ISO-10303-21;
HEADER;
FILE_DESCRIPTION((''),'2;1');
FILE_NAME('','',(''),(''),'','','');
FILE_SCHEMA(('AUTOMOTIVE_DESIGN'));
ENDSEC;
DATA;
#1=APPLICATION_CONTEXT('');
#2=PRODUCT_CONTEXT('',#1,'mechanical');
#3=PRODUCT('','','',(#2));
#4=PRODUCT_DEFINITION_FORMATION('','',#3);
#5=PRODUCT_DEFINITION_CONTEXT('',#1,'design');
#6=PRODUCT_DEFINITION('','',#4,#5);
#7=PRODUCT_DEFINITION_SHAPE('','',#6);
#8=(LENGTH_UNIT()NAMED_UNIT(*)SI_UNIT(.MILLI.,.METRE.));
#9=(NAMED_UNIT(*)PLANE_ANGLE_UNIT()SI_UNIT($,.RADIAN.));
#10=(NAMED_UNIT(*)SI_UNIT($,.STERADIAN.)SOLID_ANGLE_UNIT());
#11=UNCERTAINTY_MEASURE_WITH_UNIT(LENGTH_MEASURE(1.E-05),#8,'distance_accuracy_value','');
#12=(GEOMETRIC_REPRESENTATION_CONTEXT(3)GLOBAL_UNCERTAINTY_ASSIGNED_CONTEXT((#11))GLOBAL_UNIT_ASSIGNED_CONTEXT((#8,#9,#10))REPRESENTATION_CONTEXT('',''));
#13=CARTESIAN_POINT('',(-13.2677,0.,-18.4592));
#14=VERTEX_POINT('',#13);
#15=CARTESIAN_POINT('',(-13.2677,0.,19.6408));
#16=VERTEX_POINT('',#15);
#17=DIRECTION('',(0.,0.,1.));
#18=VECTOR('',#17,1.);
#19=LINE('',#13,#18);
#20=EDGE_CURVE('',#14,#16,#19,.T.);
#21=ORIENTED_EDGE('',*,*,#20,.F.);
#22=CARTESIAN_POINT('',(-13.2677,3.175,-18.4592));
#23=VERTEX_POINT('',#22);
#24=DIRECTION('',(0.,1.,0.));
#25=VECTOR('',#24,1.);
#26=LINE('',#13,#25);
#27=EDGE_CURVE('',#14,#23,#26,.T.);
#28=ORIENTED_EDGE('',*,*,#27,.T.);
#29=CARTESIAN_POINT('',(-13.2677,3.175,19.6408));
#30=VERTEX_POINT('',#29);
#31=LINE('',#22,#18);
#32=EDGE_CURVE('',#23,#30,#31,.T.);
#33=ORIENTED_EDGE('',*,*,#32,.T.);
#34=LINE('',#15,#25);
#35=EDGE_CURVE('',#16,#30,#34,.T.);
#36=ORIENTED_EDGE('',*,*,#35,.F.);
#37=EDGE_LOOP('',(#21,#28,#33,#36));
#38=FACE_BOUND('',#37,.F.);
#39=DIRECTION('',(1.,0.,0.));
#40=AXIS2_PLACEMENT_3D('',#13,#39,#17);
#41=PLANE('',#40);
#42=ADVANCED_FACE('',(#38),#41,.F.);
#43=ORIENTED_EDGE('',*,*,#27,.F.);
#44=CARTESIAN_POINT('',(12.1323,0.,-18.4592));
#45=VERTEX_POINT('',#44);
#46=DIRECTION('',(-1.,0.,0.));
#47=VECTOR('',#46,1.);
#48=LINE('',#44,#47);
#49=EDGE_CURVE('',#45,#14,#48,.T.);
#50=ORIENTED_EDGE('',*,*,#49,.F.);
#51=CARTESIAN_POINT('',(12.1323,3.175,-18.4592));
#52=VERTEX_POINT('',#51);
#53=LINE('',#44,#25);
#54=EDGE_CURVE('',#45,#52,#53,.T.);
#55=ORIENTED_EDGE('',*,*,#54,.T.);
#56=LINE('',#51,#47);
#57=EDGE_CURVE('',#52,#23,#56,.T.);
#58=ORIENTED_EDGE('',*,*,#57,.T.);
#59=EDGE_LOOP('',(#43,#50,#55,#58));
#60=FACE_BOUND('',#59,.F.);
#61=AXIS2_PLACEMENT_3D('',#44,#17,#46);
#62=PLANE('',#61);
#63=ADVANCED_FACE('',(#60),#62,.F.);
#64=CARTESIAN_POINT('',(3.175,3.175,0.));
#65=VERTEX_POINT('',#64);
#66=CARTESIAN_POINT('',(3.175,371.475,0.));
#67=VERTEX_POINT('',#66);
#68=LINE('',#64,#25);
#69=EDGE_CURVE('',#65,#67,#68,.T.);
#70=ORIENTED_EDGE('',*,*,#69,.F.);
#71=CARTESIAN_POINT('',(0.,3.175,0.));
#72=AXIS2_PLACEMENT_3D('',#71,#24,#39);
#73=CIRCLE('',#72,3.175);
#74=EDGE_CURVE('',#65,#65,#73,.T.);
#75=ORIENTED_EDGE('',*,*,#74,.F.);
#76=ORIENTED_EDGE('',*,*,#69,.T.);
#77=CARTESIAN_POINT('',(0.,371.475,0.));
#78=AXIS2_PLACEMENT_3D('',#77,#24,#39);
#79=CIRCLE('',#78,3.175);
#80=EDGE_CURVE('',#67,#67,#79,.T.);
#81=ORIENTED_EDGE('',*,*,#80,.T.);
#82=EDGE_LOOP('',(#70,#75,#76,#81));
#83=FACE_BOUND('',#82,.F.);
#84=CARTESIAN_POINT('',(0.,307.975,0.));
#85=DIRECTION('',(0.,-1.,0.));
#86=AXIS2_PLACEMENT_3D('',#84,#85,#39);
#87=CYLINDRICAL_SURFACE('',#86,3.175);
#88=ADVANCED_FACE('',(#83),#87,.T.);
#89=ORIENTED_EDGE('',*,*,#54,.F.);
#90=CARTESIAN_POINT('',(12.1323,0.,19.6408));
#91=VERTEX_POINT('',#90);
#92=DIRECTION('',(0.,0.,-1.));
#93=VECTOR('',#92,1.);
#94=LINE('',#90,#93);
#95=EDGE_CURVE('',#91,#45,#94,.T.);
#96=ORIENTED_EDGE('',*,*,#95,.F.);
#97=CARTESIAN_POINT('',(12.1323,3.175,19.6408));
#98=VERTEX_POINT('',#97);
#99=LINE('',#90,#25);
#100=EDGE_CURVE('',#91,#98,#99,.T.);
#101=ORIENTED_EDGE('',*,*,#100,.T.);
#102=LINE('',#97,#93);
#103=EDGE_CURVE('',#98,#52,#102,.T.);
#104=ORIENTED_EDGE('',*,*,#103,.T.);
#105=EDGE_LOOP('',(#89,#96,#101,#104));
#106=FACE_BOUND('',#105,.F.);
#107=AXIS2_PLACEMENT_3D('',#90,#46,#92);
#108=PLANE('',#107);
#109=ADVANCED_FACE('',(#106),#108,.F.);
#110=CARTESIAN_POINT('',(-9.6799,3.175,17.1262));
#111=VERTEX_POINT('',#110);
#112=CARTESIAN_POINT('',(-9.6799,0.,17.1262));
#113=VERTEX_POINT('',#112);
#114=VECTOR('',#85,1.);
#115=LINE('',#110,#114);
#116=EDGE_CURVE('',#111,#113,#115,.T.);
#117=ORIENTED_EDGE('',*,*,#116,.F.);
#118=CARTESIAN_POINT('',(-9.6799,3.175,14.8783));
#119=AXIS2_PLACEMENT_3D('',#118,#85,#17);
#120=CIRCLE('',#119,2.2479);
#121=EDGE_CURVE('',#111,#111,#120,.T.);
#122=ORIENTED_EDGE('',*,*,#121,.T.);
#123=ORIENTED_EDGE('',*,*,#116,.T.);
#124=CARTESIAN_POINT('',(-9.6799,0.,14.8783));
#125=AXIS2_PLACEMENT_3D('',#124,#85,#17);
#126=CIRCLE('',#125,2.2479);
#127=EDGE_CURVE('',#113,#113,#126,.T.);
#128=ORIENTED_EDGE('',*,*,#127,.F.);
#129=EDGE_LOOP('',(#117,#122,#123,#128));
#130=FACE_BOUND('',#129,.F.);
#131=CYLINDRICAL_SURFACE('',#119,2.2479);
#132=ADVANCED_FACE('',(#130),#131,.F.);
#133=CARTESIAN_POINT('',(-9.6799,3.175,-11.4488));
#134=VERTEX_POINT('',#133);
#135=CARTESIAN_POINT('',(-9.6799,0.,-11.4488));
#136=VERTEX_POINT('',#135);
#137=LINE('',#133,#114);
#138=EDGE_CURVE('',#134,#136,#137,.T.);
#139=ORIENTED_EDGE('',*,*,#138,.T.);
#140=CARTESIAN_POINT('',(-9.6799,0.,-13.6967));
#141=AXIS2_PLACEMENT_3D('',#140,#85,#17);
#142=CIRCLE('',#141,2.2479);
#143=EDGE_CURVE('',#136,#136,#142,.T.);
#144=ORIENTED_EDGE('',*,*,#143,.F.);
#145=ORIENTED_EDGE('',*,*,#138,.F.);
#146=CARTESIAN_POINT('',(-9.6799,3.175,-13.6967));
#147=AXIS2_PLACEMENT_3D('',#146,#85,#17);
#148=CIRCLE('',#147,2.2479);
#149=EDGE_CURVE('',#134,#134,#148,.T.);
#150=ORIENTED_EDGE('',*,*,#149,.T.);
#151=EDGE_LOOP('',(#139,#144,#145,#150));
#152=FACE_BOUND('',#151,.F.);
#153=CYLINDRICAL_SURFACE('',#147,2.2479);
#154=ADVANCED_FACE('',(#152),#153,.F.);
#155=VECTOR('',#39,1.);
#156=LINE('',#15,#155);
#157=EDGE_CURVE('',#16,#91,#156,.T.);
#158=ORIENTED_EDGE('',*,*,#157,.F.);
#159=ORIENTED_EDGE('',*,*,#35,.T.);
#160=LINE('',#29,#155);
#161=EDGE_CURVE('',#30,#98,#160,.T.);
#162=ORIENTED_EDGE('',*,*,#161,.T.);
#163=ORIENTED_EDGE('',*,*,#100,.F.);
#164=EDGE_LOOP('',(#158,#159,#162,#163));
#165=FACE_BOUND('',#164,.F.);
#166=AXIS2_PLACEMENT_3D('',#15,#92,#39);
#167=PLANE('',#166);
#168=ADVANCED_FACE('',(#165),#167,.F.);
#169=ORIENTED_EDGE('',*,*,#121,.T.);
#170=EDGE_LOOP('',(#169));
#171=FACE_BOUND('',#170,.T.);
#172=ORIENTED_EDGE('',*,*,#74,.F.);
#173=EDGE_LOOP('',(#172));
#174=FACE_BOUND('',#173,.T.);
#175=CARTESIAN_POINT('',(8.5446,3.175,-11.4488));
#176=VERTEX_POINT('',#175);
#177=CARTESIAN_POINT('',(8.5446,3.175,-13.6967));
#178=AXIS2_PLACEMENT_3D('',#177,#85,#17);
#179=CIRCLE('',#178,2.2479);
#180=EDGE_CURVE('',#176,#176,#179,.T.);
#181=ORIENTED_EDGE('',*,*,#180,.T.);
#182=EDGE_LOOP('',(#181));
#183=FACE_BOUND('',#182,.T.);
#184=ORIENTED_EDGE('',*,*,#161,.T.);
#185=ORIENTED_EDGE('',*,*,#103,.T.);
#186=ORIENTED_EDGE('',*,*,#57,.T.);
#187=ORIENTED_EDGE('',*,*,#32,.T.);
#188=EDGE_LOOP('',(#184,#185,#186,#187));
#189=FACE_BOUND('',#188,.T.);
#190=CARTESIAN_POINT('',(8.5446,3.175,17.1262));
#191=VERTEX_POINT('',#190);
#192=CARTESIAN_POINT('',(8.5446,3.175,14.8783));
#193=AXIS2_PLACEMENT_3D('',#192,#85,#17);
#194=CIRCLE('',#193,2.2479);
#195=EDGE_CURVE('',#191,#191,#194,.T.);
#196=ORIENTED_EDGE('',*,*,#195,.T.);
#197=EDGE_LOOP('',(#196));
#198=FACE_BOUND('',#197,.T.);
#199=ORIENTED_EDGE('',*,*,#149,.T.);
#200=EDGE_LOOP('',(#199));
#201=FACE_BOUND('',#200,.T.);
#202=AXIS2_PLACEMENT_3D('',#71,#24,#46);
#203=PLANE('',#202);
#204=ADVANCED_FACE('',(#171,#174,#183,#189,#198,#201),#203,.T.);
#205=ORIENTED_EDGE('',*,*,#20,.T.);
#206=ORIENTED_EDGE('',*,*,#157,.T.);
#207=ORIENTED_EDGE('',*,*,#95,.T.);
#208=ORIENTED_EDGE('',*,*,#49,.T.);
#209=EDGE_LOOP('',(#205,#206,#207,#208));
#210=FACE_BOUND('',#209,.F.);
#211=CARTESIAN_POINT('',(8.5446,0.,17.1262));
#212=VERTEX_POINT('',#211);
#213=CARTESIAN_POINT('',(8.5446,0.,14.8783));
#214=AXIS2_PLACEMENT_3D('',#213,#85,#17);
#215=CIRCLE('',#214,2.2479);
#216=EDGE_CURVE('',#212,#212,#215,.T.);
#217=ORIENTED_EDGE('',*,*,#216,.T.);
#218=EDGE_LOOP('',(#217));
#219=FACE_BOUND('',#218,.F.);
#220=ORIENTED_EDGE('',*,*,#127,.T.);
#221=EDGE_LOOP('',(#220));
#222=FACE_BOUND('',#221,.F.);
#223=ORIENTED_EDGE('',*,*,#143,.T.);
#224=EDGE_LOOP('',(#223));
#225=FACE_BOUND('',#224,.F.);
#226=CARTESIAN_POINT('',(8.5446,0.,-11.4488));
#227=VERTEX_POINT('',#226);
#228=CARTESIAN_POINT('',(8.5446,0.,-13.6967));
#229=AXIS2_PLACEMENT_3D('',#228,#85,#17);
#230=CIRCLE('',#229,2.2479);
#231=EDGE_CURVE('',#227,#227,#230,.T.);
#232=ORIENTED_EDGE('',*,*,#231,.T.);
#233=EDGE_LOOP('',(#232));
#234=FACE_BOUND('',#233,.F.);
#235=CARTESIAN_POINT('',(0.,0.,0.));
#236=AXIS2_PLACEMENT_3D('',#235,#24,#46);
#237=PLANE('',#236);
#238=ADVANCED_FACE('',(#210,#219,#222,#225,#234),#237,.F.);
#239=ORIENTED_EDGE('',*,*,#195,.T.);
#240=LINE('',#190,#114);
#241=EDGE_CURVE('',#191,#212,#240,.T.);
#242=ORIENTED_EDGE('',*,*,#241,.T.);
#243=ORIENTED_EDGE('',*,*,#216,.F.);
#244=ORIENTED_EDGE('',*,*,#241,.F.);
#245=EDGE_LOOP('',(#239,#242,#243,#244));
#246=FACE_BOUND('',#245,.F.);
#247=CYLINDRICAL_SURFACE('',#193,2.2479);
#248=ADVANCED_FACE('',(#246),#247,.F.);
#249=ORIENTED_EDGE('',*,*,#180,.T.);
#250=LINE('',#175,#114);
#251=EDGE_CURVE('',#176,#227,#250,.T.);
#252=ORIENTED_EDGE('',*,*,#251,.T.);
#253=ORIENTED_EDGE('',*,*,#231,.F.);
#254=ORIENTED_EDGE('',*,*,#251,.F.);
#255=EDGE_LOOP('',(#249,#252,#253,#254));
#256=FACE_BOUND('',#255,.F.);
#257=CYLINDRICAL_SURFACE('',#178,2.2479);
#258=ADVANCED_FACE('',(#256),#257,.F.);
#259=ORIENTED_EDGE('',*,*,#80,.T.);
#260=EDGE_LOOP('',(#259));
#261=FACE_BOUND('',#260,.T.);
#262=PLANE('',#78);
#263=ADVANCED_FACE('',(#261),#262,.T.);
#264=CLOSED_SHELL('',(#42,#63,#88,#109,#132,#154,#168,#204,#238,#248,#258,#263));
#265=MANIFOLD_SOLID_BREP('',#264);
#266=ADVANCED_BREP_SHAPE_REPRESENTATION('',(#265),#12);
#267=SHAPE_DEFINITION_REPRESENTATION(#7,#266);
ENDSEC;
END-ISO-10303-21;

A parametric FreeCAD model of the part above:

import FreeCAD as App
import Part
import Sketcher
from FreeCAD import Vector
Q = App.Units.Quantity

doc = App.newDocument("Part")
body = doc.addObject("PartDesign::Body", "Body")

# Sketch on XZ plane
sketch1 = body.newObject("Sketcher::SketchObject", "Sketch")
sketch1.AttachmentSupport = (doc.getObject("XZ_Plane"), [""])
sketch1.MapMode = "FlatFace"
sketch1.addGeometry(Part.LineSegment(Vector(-13.2677, -18.4592, 0), Vector(-13.2677, 19.6408, 0)), False)
sketch1.addGeometry(Part.LineSegment(Vector(-13.2677, 19.6408, 0), Vector(12.1323, 19.6408, 0)), False)
sketch1.addGeometry(Part.LineSegment(Vector(12.1323, 19.6408, 0), Vector(12.1323, -18.4592, 0)), False)
sketch1.addGeometry(Part.LineSegment(Vector(12.1323, -18.4592, 0), Vector(-13.2677, -18.4592, 0)), False)
sketch1.addConstraint(Sketcher.Constraint("Coincident", 0, 2, 1, 1))
sketch1.addConstraint(Sketcher.Constraint("Coincident", 1, 2, 2, 1))
sketch1.addConstraint(Sketcher.Constraint("Coincident", 2, 2, 3, 1))
sketch1.addConstraint(Sketcher.Constraint("Coincident", 3, 2, 0, 1))
sketch1.addConstraint(Sketcher.Constraint("Vertical", 0))
sketch1.addConstraint(Sketcher.Constraint("Horizontal", 1))
sketch1.addConstraint(Sketcher.Constraint("Vertical", 2))
sketch1.addConstraint(Sketcher.Constraint("Horizontal", 3))
sketch1.addConstraint(Sketcher.Constraint("DistanceX", 1, 1, 1, 2, Q("1 in")))
sketch1.addConstraint(Sketcher.Constraint("DistanceY", 0, 1, 0, 2, Q("1.5 in")))
sketch1.addConstraint(Sketcher.Constraint("DistanceX", 0, 2, -1, 1, 13.2677))
sketch1.addConstraint(Sketcher.Constraint("DistanceY", -1, 1, 0, 2, 19.6408))
pad1 = body.newObject("PartDesign::Pad", "Pad")
pad1.Profile = sketch1
pad1.Length = Q("0.125 in")
pad1.Reversed = True

# Sketch on XZ plane
sketch2 = body.newObject("Sketcher::SketchObject", "Sketch001")
sketch2.AttachmentSupport = (doc.getObject("XZ_Plane"), [""])
sketch2.MapMode = "FlatFace"
sketch2.AttachmentOffset = App.Placement(Vector(0, 0, -0.125 * 25.4), App.Rotation())
sketch2.addGeometry(Part.Circle(Vector(-9.6799, 14.8783, 0), Vector(0, 0, 1), 2.2479), False)
sketch2.addConstraint(Sketcher.Constraint("Diameter", 0, Q("0.177 in")))
sketch2.addConstraint(Sketcher.Constraint("DistanceX", 0, 3, -1, 1, Q("0.3811 in")))
sketch2.addConstraint(Sketcher.Constraint("DistanceY", -1, 1, 0, 3, 14.8783))
doc.recompute()
hole = body.newObject("PartDesign::Hole", "Hole")
hole.Profile = sketch2
hole.ThreadType = "None"
hole.Diameter = Q("0.177 in")
hole.DepthType = "Dimension"
hole.Depth = Q("0.125 in")
hole.DrillPoint = "Flat"
hole.Reversed = True

# Sketch on XZ plane
sketch3 = body.newObject("Sketcher::SketchObject", "Sketch002")
sketch3.AttachmentSupport = (doc.getObject("XZ_Plane"), [""])
sketch3.MapMode = "FlatFace"
sketch3.AttachmentOffset = App.Placement(Vector(0, 0, -0.125 * 25.4), App.Rotation())
sketch3.addGeometry(Part.Circle(Vector(8.5446, 14.8783, 0), Vector(0, 0, 1), 2.2479), False)
sketch3.addConstraint(Sketcher.Constraint("Diameter", 0, Q("0.177 in")))
sketch3.addConstraint(Sketcher.Constraint("DistanceX", -1, 1, 0, 3, Q("0.3364 in")))
sketch3.addConstraint(Sketcher.Constraint("DistanceY", -1, 1, 0, 3, 14.8783))
doc.recompute()
hole2 = body.newObject("PartDesign::Hole", "Hole001")
hole2.Profile = sketch3
hole2.ThreadType = "None"
hole2.Diameter = Q("0.177 in")
hole2.DepthType = "Dimension"
hole2.Depth = Q("0.125 in")
hole2.DrillPoint = "Flat"
hole2.Reversed = True

# Sketch on XZ plane
sketch4 = body.newObject("Sketcher::SketchObject", "Sketch003")
sketch4.AttachmentSupport = (doc.getObject("XZ_Plane"), [""])
sketch4.MapMode = "FlatFace"
sketch4.AttachmentOffset = App.Placement(Vector(0, 0, -0.125 * 25.4), App.Rotation())
sketch4.addGeometry(Part.Circle(Vector(-9.6799, -13.6967, 0), Vector(0, 0, 1), 2.2479), False)
sketch4.addConstraint(Sketcher.Constraint("Diameter", 0, Q("0.177 in")))
sketch4.addConstraint(Sketcher.Constraint("DistanceX", 0, 3, -1, 1, Q("0.3811 in")))
sketch4.addConstraint(Sketcher.Constraint("DistanceY", 0, 3, -1, 1, 13.6967))
doc.recompute()
hole3 = body.newObject("PartDesign::Hole", "Hole002")
hole3.Profile = sketch4
hole3.ThreadType = "None"
hole3.Diameter = Q("0.177 in")
hole3.DepthType = "Dimension"
hole3.Depth = Q("0.125 in")
hole3.DrillPoint = "Flat"
hole3.Reversed = True

# Sketch on XZ plane
sketch5 = body.newObject("Sketcher::SketchObject", "Sketch004")
sketch5.AttachmentSupport = (doc.getObject("XZ_Plane"), [""])
sketch5.MapMode = "FlatFace"
sketch5.AttachmentOffset = App.Placement(Vector(0, 0, -0.125 * 25.4), App.Rotation())
sketch5.addGeometry(Part.Circle(Vector(8.5446, -13.6967, 0), Vector(0, 0, 1), 2.2479), False)
sketch5.addConstraint(Sketcher.Constraint("Diameter", 0, Q("0.177 in")))
sketch5.addConstraint(Sketcher.Constraint("DistanceX", -1, 1, 0, 3, Q("0.3364 in")))
sketch5.addConstraint(Sketcher.Constraint("DistanceY", 0, 3, -1, 1, 13.6967))
doc.recompute()
hole4 = body.newObject("PartDesign::Hole", "Hole003")
hole4.Profile = sketch5
hole4.ThreadType = "None"
hole4.Diameter = Q("0.177 in")
hole4.DepthType = "Dimension"
hole4.Depth = Q("0.125 in")
hole4.DrillPoint = "Flat"
hole4.Reversed = True

# Sketch on XZ plane
sketch6 = body.newObject("Sketcher::SketchObject", "Sketch005")
sketch6.AttachmentSupport = (doc.getObject("XZ_Plane"), [""])
sketch6.MapMode = "FlatFace"
sketch6.AttachmentOffset = App.Placement(Vector(0, 0, -0.125 * 25.4), App.Rotation())
sketch6.addGeometry(Part.Circle(Vector(0, 0, 0), Vector(0, 0, 1), 3.175), False)
sketch6.addConstraint(Sketcher.Constraint("Coincident", 0, 3, -1, 1))
sketch6.addConstraint(Sketcher.Constraint("Diameter", 0, Q("0.25 in")))
pad2 = body.newObject("PartDesign::Pad", "Pad001")
pad2.Profile = sketch6
pad2.Length = Q("12 in")
pad2.Reversed = True

# Sketch on XZ plane
sketch7 = body.newObject("Sketcher::SketchObject", "Sketch006")
sketch7.AttachmentSupport = (doc.getObject("XZ_Plane"), [""])
sketch7.MapMode = "FlatFace"
sketch7.AttachmentOffset = App.Placement(Vector(0, 0, -12.125 * 25.4), App.Rotation())
sketch7.addGeometry(Part.Circle(Vector(0, 0, 0), Vector(0, 0, 1), 3.175), False)
sketch7.addConstraint(Sketcher.Constraint("Coincident", 0, 3, -1, 1))
sketch7.addConstraint(Sketcher.Constraint("Diameter", 0, Q("0.25 in")))
pad3 = body.newObject("PartDesign::Pad", "Pad002")
pad3.Profile = sketch7
pad3.Length = Q("2.5 in")
pad3.Reversed = True

doc.recompute()
